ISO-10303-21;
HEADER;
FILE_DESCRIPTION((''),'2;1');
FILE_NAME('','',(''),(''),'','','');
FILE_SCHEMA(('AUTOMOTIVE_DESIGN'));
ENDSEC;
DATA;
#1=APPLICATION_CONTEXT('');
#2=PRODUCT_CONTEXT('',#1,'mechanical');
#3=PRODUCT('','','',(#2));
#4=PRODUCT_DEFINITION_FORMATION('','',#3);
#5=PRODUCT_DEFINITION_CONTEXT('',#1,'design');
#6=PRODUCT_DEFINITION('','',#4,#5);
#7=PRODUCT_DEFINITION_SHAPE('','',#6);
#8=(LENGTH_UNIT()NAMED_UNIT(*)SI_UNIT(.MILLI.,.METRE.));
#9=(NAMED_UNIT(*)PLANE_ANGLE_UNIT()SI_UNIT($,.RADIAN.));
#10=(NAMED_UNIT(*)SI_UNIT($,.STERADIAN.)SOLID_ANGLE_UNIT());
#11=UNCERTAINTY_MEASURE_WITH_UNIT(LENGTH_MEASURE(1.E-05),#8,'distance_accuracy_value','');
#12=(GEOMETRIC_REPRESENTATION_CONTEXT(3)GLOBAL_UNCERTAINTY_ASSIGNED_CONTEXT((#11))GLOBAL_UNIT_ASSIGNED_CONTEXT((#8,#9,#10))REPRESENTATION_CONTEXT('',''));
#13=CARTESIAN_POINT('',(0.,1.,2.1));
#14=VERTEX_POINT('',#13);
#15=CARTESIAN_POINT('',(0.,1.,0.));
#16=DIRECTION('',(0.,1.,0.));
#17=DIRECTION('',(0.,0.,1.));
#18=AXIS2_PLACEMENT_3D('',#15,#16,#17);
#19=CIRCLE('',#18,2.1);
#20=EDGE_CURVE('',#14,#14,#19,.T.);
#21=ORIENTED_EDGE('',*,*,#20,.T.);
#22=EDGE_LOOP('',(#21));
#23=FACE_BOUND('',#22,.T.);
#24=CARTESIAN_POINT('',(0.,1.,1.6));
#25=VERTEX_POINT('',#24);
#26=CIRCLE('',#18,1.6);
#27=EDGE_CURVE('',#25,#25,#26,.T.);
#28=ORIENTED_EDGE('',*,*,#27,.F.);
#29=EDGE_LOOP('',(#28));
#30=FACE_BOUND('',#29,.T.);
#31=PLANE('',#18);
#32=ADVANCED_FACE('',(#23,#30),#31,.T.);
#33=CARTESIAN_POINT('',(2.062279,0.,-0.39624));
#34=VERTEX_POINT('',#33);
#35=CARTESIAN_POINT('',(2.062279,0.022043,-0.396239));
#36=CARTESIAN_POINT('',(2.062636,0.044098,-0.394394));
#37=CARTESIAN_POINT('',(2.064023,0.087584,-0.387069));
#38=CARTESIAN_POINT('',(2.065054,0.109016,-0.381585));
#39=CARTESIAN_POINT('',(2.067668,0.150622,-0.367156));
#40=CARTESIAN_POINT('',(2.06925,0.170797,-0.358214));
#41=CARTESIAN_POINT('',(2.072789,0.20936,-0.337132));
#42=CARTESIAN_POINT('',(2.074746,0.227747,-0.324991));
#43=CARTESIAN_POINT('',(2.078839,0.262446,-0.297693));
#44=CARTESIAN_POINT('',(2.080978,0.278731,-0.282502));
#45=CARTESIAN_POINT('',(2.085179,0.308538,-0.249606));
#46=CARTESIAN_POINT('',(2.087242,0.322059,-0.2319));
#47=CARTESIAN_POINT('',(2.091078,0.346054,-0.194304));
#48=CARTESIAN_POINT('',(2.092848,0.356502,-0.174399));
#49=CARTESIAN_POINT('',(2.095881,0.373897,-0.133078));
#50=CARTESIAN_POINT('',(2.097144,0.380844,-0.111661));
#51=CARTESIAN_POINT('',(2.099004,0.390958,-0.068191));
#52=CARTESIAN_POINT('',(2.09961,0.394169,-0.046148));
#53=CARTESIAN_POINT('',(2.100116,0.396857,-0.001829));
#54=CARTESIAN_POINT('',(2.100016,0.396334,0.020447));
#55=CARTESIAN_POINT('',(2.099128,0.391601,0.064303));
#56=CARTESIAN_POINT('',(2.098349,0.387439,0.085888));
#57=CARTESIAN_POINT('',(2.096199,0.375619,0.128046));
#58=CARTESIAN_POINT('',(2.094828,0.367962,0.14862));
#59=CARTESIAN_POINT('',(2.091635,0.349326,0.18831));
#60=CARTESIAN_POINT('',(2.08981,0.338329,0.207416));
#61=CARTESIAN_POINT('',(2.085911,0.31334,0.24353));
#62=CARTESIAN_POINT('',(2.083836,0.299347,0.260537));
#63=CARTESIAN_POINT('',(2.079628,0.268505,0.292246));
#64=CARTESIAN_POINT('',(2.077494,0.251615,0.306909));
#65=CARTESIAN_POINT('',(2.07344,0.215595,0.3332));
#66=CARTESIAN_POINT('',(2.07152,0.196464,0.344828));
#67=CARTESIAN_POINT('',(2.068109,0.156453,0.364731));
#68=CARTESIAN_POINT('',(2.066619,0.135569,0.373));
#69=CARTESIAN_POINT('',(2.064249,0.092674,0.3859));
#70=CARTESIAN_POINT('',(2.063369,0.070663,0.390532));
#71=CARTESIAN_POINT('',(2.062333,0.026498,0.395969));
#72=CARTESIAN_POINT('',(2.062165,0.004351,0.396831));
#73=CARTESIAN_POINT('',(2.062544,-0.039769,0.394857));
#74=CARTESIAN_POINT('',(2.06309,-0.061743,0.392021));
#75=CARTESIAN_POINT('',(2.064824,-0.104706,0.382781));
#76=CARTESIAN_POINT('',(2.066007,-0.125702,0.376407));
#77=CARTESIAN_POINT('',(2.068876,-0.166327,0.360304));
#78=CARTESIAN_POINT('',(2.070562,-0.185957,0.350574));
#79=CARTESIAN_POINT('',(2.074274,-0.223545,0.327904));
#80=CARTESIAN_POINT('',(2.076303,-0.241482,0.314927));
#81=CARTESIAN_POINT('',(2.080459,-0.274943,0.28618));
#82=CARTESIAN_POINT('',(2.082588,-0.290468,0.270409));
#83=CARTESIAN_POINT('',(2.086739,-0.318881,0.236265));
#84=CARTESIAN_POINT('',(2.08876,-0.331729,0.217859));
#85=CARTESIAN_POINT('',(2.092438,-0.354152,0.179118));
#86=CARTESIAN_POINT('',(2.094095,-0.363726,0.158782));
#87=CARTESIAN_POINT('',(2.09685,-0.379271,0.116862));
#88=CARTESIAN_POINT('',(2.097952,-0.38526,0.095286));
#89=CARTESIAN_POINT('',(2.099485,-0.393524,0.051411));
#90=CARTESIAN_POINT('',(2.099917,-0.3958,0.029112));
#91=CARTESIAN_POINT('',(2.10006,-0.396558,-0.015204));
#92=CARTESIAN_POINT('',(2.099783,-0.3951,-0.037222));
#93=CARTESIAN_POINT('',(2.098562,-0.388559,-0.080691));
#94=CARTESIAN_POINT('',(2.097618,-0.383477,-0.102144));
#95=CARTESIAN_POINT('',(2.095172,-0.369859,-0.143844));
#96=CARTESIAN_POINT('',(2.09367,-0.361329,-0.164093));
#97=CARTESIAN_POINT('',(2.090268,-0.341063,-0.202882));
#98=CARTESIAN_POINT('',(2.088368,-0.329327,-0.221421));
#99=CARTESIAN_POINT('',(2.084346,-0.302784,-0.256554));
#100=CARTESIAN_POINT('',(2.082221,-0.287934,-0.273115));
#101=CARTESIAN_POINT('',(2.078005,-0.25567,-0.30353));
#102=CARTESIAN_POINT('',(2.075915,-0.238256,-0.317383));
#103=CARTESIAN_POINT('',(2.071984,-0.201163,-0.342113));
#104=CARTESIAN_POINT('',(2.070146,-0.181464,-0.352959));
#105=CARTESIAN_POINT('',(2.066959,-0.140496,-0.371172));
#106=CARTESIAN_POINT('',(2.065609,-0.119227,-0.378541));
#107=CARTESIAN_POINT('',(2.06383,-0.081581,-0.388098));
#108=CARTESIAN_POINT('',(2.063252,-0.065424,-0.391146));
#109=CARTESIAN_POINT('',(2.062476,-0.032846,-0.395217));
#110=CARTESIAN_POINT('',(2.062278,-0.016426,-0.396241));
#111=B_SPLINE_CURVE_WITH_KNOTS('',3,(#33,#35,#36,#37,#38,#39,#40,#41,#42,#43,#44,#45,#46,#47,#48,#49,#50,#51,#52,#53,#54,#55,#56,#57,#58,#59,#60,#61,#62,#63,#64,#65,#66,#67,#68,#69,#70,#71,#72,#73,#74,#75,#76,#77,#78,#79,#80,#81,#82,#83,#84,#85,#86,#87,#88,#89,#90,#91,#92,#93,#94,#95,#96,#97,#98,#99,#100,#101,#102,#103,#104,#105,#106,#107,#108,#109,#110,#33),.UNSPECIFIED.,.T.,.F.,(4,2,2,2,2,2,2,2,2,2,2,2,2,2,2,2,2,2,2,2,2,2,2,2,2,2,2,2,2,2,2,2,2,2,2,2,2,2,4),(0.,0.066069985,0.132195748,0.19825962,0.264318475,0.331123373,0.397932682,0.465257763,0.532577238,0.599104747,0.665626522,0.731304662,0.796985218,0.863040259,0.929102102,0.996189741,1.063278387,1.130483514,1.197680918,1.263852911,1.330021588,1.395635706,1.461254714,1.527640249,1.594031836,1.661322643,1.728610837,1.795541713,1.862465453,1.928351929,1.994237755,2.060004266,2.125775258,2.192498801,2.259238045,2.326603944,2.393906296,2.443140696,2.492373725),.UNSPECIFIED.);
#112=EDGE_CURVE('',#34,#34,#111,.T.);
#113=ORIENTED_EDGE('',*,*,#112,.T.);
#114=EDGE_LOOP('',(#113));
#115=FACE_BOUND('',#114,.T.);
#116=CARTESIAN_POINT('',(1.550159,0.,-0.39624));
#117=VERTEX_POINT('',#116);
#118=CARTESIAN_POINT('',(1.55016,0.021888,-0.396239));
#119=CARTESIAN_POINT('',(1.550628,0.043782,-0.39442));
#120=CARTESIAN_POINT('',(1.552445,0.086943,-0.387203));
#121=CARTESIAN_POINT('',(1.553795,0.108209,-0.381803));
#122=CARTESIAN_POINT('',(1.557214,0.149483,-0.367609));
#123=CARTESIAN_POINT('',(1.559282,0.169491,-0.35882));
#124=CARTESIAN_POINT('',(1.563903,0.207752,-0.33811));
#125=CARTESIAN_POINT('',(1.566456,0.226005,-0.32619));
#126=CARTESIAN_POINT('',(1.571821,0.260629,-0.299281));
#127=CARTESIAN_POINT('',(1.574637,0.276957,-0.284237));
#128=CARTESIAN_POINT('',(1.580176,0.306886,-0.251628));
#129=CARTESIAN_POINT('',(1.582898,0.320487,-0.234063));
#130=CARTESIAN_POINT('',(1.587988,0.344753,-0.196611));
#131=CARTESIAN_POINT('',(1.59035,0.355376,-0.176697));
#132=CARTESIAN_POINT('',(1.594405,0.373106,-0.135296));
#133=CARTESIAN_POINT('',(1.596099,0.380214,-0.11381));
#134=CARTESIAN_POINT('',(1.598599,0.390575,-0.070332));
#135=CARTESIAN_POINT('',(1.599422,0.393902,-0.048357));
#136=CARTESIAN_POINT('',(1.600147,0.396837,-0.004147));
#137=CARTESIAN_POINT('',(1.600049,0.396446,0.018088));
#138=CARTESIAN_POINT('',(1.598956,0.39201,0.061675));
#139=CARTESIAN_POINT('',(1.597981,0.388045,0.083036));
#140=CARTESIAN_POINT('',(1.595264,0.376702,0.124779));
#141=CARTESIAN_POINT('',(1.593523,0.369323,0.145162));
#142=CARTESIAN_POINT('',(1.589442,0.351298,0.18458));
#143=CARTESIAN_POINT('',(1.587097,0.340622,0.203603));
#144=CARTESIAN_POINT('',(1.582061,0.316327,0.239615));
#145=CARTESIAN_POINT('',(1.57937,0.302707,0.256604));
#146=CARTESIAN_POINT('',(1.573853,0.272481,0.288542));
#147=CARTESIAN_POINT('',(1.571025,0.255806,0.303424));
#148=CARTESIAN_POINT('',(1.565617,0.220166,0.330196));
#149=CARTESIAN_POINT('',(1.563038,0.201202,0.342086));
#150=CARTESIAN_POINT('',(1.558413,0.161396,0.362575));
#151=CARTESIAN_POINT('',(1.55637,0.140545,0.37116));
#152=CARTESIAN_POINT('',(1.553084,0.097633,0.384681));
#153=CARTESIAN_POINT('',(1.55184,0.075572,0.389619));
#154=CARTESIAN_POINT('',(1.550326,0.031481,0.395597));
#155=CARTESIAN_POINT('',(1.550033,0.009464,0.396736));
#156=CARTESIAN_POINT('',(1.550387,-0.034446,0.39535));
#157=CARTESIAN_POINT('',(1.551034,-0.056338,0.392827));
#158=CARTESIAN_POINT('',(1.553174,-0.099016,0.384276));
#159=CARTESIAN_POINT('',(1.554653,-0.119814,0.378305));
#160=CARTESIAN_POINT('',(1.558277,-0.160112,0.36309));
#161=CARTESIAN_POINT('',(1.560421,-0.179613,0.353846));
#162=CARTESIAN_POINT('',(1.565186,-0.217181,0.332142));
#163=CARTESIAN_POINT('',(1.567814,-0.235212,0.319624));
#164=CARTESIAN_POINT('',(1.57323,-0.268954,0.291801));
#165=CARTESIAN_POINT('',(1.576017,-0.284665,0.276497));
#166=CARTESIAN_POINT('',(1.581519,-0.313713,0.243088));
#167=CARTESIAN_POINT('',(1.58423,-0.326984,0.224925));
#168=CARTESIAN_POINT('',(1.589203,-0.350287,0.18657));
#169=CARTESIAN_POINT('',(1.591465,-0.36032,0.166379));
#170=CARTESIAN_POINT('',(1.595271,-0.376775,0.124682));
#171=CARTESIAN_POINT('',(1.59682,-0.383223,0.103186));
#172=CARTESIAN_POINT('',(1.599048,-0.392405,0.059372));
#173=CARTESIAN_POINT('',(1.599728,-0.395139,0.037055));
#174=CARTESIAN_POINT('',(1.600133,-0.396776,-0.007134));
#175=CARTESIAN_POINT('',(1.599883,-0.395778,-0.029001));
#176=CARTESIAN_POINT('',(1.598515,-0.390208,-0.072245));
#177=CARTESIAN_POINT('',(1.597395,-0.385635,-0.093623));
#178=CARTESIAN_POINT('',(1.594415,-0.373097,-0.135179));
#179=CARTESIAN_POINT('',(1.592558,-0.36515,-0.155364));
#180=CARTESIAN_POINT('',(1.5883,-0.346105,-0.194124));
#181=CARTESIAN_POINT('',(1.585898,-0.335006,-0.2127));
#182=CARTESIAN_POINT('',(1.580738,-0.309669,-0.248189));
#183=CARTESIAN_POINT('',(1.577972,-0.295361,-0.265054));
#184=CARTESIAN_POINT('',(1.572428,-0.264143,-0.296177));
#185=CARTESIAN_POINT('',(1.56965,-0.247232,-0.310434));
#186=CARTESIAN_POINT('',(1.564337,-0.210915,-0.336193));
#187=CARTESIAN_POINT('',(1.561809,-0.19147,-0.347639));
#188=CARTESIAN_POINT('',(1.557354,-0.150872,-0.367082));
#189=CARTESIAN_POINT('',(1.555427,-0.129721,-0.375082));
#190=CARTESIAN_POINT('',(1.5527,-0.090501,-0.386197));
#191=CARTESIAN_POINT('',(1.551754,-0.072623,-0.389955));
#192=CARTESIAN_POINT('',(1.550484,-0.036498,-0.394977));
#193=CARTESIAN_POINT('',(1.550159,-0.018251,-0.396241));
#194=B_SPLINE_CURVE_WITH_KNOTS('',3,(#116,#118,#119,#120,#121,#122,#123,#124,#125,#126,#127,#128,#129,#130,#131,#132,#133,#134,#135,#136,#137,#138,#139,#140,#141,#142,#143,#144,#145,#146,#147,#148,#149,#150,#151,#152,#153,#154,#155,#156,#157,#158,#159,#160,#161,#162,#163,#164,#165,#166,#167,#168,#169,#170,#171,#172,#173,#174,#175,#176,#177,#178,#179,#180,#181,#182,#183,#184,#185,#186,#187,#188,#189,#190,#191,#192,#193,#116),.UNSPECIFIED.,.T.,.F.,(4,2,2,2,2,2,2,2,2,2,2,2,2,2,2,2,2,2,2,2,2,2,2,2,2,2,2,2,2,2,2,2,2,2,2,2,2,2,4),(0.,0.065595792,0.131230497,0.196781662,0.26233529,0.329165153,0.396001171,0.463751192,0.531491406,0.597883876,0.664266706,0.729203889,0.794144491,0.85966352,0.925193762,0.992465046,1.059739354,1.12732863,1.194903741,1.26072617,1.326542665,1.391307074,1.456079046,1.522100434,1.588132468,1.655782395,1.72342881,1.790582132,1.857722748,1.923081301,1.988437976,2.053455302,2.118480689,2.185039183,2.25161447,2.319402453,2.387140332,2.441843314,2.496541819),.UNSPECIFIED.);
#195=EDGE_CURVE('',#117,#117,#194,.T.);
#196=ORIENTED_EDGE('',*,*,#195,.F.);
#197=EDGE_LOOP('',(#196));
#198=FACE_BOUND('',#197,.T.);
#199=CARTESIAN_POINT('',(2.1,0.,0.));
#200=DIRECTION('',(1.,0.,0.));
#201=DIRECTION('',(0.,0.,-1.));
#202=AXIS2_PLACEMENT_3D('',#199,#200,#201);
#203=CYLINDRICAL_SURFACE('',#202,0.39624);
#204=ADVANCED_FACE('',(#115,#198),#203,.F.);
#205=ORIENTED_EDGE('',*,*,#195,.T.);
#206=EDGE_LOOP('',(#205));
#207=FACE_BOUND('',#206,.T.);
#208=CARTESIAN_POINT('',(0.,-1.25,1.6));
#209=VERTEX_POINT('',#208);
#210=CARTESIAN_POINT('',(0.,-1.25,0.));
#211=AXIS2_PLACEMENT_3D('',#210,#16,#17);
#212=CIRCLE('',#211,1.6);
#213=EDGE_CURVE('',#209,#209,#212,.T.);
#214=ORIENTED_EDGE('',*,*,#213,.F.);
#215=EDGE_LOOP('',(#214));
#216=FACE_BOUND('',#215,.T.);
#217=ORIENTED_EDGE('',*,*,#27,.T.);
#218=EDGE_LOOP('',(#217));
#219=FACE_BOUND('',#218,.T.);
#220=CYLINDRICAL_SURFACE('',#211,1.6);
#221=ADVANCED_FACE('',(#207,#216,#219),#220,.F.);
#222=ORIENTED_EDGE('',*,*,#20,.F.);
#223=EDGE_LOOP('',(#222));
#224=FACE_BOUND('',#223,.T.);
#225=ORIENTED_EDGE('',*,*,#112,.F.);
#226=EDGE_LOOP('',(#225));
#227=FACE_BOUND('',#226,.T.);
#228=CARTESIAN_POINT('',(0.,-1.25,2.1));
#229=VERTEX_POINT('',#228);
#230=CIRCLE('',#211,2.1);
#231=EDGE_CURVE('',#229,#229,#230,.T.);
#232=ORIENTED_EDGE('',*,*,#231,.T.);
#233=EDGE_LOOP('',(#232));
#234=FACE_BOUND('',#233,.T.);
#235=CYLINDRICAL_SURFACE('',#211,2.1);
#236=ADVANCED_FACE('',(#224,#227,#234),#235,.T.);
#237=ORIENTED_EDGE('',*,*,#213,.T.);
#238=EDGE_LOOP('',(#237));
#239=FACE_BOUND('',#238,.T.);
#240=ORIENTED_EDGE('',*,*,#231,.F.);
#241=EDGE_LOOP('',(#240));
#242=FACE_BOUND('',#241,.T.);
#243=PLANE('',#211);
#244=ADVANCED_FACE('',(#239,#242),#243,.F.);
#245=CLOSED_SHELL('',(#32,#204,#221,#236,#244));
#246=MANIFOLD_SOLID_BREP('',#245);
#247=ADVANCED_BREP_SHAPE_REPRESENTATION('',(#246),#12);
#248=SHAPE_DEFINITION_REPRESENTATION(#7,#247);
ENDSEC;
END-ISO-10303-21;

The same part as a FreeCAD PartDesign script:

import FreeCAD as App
import Part
import Sketcher

doc = App.newDocument("Part")
body = doc.addObject("PartDesign::Body", "Body")

# Sketch on XZ plane
sketch1 = doc.addObject("Sketcher::SketchObject", "Sketch")
body.addObject(sketch1)
sketch1.AttachmentSupport = (doc.XZ_Plane, [""])
sketch1.MapMode = "FlatFace"
sketch1.addGeometry(Part.Circle(App.Vector(0, 0, 0), App.Vector(0, 0, 1), 2.1), False)
sketch1.addGeometry(Part.Circle(App.Vector(0, 0, 0), App.Vector(0, 0, 1), 1.6), False)
sketch1.addConstraint(Sketcher.Constraint("Coincident", 0, 3, -1, 1))
sketch1.addConstraint(Sketcher.Constraint("Coincident", 1, 3, -1, 1))
sketch1.addConstraint(Sketcher.Constraint("Diameter", 0, 4.2))
sketch1.addConstraint(Sketcher.Constraint("Diameter", 1, 3.2))
pad1 = doc.addObject("PartDesign::Pad", "Pad")
body.addObject(pad1)
pad1.Profile = sketch1
pad1.Type = "TwoLengths"
pad1.Length = 1
pad1.Length2 = 1.25
pad1.Reversed = True

# Sketch on YZ plane
sketch2 = doc.addObject("Sketcher::SketchObject", "Sketch001")
body.addObject(sketch2)
sketch2.AttachmentSupport = (doc.YZ_Plane, [""])
sketch2.MapMode = "FlatFace"
sketch2.AttachmentOffset = App.Placement(App.Vector(0, 0, 2.1), App.Rotation())
sketch2.addGeometry(Part.Circle(App.Vector(0, 0, 0), App.Vector(0, 0, 1), 0.39624), False)
sketch2.addConstraint(Sketcher.Constraint("Coincident", 0, 3, -1, 1))
sketch2.addConstraint(Sketcher.Constraint("Diameter", 0, 0.79248))
pocket1 = doc.addObject("PartDesign::Pocket", "Pocket")
body.addObject(pocket1)
pocket1.Profile = sketch2
pocket1.Length = 0.549841

doc.recompute()
